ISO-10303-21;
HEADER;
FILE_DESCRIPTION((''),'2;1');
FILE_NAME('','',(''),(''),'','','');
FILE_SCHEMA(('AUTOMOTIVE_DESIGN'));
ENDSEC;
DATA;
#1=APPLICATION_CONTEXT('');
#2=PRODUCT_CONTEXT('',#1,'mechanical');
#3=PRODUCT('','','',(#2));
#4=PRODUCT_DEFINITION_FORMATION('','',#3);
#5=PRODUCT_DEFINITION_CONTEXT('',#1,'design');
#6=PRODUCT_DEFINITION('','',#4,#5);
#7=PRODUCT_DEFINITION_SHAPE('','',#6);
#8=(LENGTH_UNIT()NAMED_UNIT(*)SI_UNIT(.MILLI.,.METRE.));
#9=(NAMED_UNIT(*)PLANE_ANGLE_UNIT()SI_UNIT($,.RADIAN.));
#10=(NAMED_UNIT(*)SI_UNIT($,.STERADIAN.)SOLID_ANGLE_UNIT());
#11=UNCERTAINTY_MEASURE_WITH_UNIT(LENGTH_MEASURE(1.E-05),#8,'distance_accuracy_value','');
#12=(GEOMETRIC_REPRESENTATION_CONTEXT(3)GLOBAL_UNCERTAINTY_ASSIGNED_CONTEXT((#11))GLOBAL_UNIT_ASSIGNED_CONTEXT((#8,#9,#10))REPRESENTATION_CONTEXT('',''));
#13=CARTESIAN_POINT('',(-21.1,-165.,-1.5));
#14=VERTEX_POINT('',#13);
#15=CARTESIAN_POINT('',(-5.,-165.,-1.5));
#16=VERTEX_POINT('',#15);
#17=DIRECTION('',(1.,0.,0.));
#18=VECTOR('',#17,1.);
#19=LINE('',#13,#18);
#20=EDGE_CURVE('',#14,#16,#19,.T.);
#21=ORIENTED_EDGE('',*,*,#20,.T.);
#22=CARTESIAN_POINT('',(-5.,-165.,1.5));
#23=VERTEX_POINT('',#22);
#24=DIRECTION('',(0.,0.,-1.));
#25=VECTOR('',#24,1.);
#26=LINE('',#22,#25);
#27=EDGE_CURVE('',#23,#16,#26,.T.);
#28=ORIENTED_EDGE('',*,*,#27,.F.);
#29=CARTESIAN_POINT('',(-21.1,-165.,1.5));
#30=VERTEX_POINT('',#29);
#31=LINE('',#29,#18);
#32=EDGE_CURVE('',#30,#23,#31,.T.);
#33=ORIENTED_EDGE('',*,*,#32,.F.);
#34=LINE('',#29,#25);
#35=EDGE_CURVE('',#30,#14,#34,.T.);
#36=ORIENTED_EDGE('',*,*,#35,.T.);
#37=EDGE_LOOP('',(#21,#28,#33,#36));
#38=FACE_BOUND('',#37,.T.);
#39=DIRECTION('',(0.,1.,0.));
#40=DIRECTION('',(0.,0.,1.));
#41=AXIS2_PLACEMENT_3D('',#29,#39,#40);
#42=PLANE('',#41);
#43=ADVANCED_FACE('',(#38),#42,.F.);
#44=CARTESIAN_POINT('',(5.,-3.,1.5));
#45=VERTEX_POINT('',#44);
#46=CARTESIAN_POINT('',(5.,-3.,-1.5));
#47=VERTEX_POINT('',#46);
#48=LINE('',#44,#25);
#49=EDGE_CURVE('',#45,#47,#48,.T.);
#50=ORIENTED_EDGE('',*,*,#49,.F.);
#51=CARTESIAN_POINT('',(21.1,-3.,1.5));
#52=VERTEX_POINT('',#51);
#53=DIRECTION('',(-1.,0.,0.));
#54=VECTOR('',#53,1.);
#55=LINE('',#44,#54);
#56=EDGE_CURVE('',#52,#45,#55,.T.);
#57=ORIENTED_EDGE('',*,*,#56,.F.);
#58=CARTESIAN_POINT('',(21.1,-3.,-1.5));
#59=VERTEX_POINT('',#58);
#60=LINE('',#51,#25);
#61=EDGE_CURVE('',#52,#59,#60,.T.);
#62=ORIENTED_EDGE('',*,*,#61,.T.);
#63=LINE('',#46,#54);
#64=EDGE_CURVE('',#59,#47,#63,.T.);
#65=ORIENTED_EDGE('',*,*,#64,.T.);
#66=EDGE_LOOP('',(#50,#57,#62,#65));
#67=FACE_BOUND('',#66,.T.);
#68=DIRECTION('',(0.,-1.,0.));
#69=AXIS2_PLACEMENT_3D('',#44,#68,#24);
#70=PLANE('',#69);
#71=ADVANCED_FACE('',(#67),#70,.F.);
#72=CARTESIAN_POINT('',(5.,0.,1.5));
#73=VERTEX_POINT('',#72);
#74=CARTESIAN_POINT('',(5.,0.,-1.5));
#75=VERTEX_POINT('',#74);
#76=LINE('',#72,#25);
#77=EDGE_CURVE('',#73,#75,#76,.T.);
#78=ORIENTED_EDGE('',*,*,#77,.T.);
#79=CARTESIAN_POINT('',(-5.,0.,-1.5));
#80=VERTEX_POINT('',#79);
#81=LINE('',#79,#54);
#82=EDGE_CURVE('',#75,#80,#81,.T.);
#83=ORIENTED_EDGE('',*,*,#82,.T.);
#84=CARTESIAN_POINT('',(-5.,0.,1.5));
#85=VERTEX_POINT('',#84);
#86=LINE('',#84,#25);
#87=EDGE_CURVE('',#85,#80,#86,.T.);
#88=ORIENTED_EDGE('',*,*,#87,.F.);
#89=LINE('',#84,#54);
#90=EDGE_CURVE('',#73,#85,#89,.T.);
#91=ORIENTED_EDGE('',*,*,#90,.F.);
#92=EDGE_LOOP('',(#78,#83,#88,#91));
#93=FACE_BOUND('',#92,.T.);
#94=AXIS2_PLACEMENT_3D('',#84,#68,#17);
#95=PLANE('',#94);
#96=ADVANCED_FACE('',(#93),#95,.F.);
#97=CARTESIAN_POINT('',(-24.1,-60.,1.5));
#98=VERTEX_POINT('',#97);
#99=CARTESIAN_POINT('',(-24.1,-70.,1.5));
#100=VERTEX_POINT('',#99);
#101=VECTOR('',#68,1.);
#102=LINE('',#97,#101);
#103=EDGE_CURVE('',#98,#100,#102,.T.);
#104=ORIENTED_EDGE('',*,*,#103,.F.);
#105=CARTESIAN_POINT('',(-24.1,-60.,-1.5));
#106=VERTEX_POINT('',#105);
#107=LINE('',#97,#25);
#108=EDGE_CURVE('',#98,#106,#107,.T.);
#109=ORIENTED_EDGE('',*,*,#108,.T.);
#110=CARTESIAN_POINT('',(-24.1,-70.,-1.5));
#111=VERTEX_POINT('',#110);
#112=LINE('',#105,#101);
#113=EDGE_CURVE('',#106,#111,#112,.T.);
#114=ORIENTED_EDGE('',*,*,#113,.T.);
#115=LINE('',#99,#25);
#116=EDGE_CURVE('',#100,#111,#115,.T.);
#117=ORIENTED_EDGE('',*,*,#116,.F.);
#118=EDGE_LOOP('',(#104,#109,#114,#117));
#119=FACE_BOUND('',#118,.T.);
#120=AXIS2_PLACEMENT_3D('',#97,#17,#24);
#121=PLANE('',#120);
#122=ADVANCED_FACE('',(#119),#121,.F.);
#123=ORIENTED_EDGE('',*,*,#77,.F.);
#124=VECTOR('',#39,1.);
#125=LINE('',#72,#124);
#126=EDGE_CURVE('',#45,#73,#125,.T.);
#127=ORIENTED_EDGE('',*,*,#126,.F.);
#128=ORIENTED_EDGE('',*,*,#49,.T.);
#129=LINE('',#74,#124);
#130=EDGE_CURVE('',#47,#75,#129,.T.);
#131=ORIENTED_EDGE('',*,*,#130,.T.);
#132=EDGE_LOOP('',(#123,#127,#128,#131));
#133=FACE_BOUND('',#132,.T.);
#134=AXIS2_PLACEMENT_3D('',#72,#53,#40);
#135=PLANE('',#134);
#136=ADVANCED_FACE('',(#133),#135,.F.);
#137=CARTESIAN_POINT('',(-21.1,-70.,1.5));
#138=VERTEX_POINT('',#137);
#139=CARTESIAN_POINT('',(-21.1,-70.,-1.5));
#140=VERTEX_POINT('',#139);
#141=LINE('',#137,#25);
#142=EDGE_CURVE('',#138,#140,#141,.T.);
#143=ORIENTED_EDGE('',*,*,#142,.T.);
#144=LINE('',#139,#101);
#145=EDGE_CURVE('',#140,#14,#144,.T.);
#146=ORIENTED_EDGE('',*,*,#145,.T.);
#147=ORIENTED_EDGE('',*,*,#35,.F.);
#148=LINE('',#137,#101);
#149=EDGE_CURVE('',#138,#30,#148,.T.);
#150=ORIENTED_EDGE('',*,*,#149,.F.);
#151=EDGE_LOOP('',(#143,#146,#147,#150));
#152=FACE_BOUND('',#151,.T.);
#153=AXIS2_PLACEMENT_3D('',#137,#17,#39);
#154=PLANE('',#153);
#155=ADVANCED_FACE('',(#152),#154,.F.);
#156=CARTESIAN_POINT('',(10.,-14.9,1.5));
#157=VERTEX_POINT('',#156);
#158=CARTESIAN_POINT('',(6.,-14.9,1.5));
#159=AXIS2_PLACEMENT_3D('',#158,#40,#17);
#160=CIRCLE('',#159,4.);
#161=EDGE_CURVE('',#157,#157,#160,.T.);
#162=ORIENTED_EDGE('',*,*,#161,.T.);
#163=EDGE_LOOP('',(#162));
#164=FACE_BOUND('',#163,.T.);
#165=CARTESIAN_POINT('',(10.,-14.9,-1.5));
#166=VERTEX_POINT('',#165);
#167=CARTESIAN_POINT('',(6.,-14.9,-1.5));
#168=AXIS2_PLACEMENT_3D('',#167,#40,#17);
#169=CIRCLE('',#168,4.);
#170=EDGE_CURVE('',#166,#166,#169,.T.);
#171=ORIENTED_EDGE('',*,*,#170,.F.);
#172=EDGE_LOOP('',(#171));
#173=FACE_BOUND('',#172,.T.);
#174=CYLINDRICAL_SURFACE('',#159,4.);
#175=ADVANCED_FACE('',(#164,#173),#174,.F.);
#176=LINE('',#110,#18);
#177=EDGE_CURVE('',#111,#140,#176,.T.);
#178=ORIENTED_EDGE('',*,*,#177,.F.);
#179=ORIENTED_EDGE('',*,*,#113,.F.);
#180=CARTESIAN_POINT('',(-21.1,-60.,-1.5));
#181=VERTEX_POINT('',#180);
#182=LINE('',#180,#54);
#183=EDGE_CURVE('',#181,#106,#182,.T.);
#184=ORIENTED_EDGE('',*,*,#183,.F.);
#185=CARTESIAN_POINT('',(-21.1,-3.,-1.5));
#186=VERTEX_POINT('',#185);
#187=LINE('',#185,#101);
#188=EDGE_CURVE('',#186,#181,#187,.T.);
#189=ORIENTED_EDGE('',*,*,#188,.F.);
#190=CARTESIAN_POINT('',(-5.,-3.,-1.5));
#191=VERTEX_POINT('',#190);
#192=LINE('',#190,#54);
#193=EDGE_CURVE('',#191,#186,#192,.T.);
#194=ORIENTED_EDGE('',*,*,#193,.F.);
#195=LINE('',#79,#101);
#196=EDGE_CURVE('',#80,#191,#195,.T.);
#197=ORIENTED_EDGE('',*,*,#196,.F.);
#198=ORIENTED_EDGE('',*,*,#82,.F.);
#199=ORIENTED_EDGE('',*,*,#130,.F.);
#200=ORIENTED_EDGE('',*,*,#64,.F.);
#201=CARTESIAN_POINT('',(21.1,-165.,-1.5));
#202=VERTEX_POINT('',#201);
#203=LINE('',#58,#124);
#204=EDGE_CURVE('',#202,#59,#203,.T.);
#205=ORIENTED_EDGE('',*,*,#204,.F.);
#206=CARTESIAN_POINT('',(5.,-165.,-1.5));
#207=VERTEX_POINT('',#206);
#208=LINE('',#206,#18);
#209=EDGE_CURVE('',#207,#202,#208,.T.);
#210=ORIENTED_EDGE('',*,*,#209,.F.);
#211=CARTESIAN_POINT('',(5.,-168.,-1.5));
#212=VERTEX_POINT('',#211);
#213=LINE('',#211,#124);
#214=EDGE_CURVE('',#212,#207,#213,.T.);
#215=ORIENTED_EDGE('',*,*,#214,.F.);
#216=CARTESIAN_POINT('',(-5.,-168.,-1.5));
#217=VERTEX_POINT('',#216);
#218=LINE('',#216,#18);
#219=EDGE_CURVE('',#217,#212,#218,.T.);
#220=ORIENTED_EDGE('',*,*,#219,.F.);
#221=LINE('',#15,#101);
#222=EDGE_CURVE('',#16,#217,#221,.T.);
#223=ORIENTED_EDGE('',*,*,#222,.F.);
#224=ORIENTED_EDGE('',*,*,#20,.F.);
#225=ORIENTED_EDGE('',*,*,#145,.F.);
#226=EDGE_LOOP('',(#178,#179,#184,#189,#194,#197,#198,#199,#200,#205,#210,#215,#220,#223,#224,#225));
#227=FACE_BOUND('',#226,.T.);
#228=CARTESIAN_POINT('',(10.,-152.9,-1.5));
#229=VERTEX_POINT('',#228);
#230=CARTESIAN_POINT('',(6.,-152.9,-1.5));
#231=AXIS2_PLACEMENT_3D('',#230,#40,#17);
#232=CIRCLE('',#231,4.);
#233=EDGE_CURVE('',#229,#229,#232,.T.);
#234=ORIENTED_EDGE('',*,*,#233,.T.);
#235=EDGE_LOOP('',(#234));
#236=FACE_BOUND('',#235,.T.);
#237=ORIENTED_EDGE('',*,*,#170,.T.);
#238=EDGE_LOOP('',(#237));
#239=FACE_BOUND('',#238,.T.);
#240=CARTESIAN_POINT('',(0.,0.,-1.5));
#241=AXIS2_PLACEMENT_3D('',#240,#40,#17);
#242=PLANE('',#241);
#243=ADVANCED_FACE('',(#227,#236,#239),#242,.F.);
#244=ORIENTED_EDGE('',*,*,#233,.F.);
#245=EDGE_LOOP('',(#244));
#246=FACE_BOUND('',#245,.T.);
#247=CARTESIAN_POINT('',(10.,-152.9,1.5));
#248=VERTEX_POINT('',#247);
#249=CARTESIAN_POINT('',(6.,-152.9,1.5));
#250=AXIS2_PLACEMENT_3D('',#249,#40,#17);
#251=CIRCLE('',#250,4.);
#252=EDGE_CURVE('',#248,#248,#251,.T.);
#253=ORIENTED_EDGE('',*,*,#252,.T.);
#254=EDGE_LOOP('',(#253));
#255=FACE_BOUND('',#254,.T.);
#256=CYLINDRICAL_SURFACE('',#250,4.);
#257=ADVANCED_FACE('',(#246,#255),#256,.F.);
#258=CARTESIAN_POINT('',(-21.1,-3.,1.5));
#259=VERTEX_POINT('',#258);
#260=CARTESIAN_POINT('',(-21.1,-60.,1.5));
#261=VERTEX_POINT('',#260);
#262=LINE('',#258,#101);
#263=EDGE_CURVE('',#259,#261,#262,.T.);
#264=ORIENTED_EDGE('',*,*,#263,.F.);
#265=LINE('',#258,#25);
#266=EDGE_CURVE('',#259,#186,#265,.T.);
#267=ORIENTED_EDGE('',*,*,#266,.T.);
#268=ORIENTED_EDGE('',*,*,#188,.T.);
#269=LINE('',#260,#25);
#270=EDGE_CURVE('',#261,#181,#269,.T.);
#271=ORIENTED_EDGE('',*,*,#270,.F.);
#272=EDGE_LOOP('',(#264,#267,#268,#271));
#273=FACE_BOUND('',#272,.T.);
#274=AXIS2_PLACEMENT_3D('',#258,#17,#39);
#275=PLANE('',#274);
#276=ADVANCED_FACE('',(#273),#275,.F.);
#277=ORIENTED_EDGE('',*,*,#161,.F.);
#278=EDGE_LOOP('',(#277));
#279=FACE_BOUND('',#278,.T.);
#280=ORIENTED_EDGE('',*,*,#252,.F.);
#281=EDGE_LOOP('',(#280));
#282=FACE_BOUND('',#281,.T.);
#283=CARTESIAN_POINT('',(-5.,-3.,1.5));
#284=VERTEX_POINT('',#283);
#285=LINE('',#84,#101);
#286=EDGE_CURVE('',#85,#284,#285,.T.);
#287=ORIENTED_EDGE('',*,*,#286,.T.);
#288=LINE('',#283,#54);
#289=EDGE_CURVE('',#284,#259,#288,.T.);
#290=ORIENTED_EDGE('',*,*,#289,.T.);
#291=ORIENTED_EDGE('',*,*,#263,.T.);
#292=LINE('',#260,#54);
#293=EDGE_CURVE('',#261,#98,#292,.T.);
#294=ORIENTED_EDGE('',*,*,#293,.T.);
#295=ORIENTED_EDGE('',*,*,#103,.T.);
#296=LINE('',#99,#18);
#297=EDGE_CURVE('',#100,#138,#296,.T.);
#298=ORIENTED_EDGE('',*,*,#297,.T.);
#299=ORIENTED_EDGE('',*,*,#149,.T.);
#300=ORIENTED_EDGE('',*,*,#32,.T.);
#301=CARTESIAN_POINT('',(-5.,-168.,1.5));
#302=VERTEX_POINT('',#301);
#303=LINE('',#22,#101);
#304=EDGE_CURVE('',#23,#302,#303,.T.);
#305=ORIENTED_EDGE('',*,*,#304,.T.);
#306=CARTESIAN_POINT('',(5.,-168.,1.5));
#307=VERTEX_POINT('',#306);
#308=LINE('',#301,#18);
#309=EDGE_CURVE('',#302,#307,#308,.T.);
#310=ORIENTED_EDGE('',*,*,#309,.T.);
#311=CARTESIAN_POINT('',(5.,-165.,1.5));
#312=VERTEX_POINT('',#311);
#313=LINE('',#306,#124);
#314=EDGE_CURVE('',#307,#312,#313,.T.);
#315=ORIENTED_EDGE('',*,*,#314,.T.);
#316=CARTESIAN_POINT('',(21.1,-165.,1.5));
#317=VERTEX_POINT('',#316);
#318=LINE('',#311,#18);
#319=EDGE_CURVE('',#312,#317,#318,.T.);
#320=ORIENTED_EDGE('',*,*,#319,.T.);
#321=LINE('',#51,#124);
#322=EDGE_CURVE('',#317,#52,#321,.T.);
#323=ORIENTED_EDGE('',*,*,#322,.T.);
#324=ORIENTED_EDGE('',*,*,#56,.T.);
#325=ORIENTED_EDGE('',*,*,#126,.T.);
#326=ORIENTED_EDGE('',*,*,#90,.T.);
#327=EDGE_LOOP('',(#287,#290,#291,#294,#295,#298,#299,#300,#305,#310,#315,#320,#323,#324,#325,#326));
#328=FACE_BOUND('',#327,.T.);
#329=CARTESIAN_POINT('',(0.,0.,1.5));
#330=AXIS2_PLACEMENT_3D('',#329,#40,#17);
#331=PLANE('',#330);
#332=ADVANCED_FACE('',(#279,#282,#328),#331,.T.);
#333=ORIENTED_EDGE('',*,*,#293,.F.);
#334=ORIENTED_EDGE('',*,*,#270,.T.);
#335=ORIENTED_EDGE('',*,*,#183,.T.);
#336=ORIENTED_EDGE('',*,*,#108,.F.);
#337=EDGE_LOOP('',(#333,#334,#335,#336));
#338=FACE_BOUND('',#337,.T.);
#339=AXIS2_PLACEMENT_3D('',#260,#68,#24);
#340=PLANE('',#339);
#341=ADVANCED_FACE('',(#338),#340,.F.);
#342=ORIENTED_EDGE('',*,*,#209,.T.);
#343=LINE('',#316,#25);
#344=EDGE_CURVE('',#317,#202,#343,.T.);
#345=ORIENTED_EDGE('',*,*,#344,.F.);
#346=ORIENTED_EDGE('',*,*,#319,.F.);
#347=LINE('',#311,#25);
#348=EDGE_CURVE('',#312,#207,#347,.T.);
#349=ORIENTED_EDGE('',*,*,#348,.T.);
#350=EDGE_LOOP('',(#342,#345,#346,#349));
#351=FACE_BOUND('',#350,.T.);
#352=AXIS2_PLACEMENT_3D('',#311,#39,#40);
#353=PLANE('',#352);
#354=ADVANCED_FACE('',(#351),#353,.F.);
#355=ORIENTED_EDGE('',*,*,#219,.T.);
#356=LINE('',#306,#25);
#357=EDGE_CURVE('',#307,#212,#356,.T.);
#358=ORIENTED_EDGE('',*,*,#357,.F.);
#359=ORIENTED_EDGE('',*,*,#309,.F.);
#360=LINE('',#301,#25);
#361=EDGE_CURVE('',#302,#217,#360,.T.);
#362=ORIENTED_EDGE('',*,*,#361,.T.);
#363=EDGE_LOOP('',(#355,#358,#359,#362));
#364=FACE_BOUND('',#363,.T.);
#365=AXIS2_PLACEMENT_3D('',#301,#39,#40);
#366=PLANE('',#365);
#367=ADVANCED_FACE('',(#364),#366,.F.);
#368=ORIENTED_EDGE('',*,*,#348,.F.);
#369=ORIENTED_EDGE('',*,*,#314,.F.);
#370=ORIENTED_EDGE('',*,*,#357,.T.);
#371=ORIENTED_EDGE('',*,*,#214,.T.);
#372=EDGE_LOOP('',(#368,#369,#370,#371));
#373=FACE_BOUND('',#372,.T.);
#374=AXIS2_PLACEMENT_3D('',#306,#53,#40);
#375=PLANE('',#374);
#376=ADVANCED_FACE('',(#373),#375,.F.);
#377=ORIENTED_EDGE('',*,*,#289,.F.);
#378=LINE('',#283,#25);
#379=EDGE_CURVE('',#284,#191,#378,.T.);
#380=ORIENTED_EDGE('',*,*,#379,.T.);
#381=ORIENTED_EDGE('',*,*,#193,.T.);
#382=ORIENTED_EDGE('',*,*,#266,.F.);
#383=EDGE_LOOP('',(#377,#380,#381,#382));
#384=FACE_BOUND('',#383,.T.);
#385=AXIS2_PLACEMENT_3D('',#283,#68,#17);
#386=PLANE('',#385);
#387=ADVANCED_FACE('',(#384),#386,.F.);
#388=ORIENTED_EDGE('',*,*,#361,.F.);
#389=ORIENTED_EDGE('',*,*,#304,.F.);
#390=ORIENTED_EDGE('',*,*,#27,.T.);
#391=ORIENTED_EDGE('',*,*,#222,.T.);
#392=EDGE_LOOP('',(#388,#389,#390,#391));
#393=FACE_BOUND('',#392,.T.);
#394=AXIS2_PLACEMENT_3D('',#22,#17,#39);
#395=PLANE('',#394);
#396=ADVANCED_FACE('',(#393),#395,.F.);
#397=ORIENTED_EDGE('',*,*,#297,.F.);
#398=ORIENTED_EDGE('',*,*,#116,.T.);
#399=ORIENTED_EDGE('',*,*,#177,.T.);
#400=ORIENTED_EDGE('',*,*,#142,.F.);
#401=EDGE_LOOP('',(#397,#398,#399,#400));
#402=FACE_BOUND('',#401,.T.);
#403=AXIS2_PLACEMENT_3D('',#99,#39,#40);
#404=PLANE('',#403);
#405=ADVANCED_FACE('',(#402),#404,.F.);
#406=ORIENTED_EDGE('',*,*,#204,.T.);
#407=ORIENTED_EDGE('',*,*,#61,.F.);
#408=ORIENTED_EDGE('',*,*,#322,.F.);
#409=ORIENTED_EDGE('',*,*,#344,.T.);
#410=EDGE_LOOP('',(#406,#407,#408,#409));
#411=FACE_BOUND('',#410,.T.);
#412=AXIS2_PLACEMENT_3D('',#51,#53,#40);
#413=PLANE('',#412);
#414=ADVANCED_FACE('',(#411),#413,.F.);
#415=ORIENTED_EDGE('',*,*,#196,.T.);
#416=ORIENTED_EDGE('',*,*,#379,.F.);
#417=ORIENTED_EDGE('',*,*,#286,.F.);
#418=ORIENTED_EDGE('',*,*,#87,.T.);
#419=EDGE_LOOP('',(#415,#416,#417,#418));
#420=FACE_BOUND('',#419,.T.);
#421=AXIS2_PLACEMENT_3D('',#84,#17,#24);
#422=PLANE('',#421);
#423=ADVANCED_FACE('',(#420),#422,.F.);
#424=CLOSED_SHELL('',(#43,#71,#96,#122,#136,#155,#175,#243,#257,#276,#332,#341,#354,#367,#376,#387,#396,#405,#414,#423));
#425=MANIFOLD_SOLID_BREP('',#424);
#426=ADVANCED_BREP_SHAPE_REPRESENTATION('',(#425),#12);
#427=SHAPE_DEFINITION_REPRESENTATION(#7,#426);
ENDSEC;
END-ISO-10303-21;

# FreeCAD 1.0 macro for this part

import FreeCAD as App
import Part
import Sketcher

V = App.Vector


def add_polygon(sketch, points):
    """Adds a closed chain of lines whose ends are joined by coincident constraints."""
    first, n = sketch.GeometryCount, len(points)
    for a, b in zip(points, points[1:] + points[:1]):
        sketch.addGeometry(Part.LineSegment(App.Vector(*a, 0), App.Vector(*b, 0)), False)
    for i in range(n):
        sketch.addConstraint(Sketcher.Constraint("Coincident", first + i, 2, first + (i + 1) % n, 1))

doc = App.newDocument("Part")
params = doc.addObject("Spreadsheet::Sheet", "Params")
for row, (alias, value) in enumerate([
    ("sketch1_width", "10 mm"),
    ("sketch1_width2", "3 mm"),
    ("sketch1_height", "57 mm"),
    ("sketch1_height2", "95 mm"),
    ("sketch1_width3", "16.1 mm"),
    ("pad1_length", "3 mm"),
    ("sketch2_diameter", "8 mm"),
    ("hole_diameter", "8 mm"),
], start=1):
    params.set(f"A{row}", alias)
    params.set(f"B{row}", "=" + value)
    params.setAlias(f"B{row}", alias)

body = doc.addObject("PartDesign::Body", "Body")

sketch1 = body.newObject("Sketcher::SketchObject", "Sketch")
sketch1.AttachmentSupport = (doc.getObject("XY_Plane"), [""])
sketch1.MapMode = "FlatFace"
add_polygon(sketch1, [(5, 0), (-5, 0), (-5, -3), (-21.1, -3), (-21.1, -60), (-24.1, -60), (-24.1, -70), (-21.1, -70), (-21.1, -165), (-5, -165), (-5, -168), (5, -168), (5, -165), (21.1, -165), (21.1, -3), (5, -3)])
sketch1.addConstraint([
    Sketcher.Constraint("Horizontal", 0),
    Sketcher.Constraint("Vertical", 1),
    Sketcher.Constraint("Horizontal", 2),
    Sketcher.Constraint("Vertical", 3),
    Sketcher.Constraint("Horizontal", 4),
    Sketcher.Constraint("Vertical", 5),
    Sketcher.Constraint("Horizontal", 6),
    Sketcher.Constraint("Vertical", 7),
    Sketcher.Constraint("Horizontal", 8),
    Sketcher.Constraint("Vertical", 9),
    Sketcher.Constraint("Horizontal", 10),
    Sketcher.Constraint("Vertical", 11),
    Sketcher.Constraint("Horizontal", 12),
    Sketcher.Constraint("Vertical", 13),
    Sketcher.Constraint("Horizontal", 14),
    Sketcher.Constraint("Vertical", 15),
    Sketcher.Constraint("Symmetric", 0, 2, 15, 2, -1, 1),
    Sketcher.Constraint("Symmetric", 8, 2, 11, 2, -2),
    Sketcher.Constraint("Symmetric", 2, 2, 13, 2, -2),
    Sketcher.Constraint("Vertical", 3, 2, 6, 2),
    Sketcher.Constraint("Vertical", 1, 2, 8, 2),
    Sketcher.Constraint("Equal", 6, 1),
    Sketcher.Constraint("Equal", 10, 5),
    Sketcher.Constraint("Equal", 1, 9),
    Sketcher.Constraint("DistanceX", 0, 2, 0, 1, 10.0),
    Sketcher.Constraint("DistanceX", 4, 2, 4, 1, 3.0),
    Sketcher.Constraint("DistanceY", 3, 2, 3, 1, 57.0),
    Sketcher.Constraint("DistanceY", 7, 2, 7, 1, 95.0),
    Sketcher.Constraint("DistanceX", 2, 2, 2, 1, 16.1),
])
sketch1.setExpression("Constraints[40]", "Params.sketch1_width")
sketch1.setExpression("Constraints[41]", "Params.sketch1_width2")
sketch1.setExpression("Constraints[42]", "Params.sketch1_height")
sketch1.setExpression("Constraints[43]", "Params.sketch1_height2")
sketch1.setExpression("Constraints[44]", "Params.sketch1_width3")
pad1 = body.newObject("PartDesign::Pad", "Pad")
pad1.Profile = sketch1
pad1.setExpression("Length", "Params.pad1_length")
pad1.Midplane = True

sketch2 = body.newObject("Sketcher::SketchObject", "Sketch001")
sketch2.AttachmentSupport = (doc.getObject("XY_Plane"), [""])
sketch2.MapMode = "FlatFace"
sketch2.AttachmentOffset = App.Placement(V(0, 0, 1.5), App.Rotation())
sketch2.addGeometry([
    Part.Circle(V(6, -14.9, 0), V(0, 0, 1), 4),
    Part.Circle(V(6, -152.9, 0), V(0, 0, 1), 4),
], False)
sketch2.addConstraint([
    Sketcher.Constraint("Equal", 0, 1),
    Sketcher.Constraint("Vertical", 0, 3, 1, 3),
    Sketcher.Constraint("Diameter", 0, 8.0),
    Sketcher.Constraint("DistanceX", -1, 1, 0, 3, 6.0),
    Sketcher.Constraint("DistanceY", 1, 3, 0, 3, 138.0),
    Sketcher.Constraint("DistanceY", 0, 3, -1, 1, 14.9),
])
sketch2.setExpression("Constraints[2]", "Params.sketch2_diameter")
doc.recompute()
hole = body.newObject("PartDesign::Hole", "Hole")
hole.Profile = sketch2
hole.ThreadType = "None"
hole.setExpression("Diameter", "Params.hole_diameter")
hole.DepthType = "ThroughAll"

doc.recompute()
